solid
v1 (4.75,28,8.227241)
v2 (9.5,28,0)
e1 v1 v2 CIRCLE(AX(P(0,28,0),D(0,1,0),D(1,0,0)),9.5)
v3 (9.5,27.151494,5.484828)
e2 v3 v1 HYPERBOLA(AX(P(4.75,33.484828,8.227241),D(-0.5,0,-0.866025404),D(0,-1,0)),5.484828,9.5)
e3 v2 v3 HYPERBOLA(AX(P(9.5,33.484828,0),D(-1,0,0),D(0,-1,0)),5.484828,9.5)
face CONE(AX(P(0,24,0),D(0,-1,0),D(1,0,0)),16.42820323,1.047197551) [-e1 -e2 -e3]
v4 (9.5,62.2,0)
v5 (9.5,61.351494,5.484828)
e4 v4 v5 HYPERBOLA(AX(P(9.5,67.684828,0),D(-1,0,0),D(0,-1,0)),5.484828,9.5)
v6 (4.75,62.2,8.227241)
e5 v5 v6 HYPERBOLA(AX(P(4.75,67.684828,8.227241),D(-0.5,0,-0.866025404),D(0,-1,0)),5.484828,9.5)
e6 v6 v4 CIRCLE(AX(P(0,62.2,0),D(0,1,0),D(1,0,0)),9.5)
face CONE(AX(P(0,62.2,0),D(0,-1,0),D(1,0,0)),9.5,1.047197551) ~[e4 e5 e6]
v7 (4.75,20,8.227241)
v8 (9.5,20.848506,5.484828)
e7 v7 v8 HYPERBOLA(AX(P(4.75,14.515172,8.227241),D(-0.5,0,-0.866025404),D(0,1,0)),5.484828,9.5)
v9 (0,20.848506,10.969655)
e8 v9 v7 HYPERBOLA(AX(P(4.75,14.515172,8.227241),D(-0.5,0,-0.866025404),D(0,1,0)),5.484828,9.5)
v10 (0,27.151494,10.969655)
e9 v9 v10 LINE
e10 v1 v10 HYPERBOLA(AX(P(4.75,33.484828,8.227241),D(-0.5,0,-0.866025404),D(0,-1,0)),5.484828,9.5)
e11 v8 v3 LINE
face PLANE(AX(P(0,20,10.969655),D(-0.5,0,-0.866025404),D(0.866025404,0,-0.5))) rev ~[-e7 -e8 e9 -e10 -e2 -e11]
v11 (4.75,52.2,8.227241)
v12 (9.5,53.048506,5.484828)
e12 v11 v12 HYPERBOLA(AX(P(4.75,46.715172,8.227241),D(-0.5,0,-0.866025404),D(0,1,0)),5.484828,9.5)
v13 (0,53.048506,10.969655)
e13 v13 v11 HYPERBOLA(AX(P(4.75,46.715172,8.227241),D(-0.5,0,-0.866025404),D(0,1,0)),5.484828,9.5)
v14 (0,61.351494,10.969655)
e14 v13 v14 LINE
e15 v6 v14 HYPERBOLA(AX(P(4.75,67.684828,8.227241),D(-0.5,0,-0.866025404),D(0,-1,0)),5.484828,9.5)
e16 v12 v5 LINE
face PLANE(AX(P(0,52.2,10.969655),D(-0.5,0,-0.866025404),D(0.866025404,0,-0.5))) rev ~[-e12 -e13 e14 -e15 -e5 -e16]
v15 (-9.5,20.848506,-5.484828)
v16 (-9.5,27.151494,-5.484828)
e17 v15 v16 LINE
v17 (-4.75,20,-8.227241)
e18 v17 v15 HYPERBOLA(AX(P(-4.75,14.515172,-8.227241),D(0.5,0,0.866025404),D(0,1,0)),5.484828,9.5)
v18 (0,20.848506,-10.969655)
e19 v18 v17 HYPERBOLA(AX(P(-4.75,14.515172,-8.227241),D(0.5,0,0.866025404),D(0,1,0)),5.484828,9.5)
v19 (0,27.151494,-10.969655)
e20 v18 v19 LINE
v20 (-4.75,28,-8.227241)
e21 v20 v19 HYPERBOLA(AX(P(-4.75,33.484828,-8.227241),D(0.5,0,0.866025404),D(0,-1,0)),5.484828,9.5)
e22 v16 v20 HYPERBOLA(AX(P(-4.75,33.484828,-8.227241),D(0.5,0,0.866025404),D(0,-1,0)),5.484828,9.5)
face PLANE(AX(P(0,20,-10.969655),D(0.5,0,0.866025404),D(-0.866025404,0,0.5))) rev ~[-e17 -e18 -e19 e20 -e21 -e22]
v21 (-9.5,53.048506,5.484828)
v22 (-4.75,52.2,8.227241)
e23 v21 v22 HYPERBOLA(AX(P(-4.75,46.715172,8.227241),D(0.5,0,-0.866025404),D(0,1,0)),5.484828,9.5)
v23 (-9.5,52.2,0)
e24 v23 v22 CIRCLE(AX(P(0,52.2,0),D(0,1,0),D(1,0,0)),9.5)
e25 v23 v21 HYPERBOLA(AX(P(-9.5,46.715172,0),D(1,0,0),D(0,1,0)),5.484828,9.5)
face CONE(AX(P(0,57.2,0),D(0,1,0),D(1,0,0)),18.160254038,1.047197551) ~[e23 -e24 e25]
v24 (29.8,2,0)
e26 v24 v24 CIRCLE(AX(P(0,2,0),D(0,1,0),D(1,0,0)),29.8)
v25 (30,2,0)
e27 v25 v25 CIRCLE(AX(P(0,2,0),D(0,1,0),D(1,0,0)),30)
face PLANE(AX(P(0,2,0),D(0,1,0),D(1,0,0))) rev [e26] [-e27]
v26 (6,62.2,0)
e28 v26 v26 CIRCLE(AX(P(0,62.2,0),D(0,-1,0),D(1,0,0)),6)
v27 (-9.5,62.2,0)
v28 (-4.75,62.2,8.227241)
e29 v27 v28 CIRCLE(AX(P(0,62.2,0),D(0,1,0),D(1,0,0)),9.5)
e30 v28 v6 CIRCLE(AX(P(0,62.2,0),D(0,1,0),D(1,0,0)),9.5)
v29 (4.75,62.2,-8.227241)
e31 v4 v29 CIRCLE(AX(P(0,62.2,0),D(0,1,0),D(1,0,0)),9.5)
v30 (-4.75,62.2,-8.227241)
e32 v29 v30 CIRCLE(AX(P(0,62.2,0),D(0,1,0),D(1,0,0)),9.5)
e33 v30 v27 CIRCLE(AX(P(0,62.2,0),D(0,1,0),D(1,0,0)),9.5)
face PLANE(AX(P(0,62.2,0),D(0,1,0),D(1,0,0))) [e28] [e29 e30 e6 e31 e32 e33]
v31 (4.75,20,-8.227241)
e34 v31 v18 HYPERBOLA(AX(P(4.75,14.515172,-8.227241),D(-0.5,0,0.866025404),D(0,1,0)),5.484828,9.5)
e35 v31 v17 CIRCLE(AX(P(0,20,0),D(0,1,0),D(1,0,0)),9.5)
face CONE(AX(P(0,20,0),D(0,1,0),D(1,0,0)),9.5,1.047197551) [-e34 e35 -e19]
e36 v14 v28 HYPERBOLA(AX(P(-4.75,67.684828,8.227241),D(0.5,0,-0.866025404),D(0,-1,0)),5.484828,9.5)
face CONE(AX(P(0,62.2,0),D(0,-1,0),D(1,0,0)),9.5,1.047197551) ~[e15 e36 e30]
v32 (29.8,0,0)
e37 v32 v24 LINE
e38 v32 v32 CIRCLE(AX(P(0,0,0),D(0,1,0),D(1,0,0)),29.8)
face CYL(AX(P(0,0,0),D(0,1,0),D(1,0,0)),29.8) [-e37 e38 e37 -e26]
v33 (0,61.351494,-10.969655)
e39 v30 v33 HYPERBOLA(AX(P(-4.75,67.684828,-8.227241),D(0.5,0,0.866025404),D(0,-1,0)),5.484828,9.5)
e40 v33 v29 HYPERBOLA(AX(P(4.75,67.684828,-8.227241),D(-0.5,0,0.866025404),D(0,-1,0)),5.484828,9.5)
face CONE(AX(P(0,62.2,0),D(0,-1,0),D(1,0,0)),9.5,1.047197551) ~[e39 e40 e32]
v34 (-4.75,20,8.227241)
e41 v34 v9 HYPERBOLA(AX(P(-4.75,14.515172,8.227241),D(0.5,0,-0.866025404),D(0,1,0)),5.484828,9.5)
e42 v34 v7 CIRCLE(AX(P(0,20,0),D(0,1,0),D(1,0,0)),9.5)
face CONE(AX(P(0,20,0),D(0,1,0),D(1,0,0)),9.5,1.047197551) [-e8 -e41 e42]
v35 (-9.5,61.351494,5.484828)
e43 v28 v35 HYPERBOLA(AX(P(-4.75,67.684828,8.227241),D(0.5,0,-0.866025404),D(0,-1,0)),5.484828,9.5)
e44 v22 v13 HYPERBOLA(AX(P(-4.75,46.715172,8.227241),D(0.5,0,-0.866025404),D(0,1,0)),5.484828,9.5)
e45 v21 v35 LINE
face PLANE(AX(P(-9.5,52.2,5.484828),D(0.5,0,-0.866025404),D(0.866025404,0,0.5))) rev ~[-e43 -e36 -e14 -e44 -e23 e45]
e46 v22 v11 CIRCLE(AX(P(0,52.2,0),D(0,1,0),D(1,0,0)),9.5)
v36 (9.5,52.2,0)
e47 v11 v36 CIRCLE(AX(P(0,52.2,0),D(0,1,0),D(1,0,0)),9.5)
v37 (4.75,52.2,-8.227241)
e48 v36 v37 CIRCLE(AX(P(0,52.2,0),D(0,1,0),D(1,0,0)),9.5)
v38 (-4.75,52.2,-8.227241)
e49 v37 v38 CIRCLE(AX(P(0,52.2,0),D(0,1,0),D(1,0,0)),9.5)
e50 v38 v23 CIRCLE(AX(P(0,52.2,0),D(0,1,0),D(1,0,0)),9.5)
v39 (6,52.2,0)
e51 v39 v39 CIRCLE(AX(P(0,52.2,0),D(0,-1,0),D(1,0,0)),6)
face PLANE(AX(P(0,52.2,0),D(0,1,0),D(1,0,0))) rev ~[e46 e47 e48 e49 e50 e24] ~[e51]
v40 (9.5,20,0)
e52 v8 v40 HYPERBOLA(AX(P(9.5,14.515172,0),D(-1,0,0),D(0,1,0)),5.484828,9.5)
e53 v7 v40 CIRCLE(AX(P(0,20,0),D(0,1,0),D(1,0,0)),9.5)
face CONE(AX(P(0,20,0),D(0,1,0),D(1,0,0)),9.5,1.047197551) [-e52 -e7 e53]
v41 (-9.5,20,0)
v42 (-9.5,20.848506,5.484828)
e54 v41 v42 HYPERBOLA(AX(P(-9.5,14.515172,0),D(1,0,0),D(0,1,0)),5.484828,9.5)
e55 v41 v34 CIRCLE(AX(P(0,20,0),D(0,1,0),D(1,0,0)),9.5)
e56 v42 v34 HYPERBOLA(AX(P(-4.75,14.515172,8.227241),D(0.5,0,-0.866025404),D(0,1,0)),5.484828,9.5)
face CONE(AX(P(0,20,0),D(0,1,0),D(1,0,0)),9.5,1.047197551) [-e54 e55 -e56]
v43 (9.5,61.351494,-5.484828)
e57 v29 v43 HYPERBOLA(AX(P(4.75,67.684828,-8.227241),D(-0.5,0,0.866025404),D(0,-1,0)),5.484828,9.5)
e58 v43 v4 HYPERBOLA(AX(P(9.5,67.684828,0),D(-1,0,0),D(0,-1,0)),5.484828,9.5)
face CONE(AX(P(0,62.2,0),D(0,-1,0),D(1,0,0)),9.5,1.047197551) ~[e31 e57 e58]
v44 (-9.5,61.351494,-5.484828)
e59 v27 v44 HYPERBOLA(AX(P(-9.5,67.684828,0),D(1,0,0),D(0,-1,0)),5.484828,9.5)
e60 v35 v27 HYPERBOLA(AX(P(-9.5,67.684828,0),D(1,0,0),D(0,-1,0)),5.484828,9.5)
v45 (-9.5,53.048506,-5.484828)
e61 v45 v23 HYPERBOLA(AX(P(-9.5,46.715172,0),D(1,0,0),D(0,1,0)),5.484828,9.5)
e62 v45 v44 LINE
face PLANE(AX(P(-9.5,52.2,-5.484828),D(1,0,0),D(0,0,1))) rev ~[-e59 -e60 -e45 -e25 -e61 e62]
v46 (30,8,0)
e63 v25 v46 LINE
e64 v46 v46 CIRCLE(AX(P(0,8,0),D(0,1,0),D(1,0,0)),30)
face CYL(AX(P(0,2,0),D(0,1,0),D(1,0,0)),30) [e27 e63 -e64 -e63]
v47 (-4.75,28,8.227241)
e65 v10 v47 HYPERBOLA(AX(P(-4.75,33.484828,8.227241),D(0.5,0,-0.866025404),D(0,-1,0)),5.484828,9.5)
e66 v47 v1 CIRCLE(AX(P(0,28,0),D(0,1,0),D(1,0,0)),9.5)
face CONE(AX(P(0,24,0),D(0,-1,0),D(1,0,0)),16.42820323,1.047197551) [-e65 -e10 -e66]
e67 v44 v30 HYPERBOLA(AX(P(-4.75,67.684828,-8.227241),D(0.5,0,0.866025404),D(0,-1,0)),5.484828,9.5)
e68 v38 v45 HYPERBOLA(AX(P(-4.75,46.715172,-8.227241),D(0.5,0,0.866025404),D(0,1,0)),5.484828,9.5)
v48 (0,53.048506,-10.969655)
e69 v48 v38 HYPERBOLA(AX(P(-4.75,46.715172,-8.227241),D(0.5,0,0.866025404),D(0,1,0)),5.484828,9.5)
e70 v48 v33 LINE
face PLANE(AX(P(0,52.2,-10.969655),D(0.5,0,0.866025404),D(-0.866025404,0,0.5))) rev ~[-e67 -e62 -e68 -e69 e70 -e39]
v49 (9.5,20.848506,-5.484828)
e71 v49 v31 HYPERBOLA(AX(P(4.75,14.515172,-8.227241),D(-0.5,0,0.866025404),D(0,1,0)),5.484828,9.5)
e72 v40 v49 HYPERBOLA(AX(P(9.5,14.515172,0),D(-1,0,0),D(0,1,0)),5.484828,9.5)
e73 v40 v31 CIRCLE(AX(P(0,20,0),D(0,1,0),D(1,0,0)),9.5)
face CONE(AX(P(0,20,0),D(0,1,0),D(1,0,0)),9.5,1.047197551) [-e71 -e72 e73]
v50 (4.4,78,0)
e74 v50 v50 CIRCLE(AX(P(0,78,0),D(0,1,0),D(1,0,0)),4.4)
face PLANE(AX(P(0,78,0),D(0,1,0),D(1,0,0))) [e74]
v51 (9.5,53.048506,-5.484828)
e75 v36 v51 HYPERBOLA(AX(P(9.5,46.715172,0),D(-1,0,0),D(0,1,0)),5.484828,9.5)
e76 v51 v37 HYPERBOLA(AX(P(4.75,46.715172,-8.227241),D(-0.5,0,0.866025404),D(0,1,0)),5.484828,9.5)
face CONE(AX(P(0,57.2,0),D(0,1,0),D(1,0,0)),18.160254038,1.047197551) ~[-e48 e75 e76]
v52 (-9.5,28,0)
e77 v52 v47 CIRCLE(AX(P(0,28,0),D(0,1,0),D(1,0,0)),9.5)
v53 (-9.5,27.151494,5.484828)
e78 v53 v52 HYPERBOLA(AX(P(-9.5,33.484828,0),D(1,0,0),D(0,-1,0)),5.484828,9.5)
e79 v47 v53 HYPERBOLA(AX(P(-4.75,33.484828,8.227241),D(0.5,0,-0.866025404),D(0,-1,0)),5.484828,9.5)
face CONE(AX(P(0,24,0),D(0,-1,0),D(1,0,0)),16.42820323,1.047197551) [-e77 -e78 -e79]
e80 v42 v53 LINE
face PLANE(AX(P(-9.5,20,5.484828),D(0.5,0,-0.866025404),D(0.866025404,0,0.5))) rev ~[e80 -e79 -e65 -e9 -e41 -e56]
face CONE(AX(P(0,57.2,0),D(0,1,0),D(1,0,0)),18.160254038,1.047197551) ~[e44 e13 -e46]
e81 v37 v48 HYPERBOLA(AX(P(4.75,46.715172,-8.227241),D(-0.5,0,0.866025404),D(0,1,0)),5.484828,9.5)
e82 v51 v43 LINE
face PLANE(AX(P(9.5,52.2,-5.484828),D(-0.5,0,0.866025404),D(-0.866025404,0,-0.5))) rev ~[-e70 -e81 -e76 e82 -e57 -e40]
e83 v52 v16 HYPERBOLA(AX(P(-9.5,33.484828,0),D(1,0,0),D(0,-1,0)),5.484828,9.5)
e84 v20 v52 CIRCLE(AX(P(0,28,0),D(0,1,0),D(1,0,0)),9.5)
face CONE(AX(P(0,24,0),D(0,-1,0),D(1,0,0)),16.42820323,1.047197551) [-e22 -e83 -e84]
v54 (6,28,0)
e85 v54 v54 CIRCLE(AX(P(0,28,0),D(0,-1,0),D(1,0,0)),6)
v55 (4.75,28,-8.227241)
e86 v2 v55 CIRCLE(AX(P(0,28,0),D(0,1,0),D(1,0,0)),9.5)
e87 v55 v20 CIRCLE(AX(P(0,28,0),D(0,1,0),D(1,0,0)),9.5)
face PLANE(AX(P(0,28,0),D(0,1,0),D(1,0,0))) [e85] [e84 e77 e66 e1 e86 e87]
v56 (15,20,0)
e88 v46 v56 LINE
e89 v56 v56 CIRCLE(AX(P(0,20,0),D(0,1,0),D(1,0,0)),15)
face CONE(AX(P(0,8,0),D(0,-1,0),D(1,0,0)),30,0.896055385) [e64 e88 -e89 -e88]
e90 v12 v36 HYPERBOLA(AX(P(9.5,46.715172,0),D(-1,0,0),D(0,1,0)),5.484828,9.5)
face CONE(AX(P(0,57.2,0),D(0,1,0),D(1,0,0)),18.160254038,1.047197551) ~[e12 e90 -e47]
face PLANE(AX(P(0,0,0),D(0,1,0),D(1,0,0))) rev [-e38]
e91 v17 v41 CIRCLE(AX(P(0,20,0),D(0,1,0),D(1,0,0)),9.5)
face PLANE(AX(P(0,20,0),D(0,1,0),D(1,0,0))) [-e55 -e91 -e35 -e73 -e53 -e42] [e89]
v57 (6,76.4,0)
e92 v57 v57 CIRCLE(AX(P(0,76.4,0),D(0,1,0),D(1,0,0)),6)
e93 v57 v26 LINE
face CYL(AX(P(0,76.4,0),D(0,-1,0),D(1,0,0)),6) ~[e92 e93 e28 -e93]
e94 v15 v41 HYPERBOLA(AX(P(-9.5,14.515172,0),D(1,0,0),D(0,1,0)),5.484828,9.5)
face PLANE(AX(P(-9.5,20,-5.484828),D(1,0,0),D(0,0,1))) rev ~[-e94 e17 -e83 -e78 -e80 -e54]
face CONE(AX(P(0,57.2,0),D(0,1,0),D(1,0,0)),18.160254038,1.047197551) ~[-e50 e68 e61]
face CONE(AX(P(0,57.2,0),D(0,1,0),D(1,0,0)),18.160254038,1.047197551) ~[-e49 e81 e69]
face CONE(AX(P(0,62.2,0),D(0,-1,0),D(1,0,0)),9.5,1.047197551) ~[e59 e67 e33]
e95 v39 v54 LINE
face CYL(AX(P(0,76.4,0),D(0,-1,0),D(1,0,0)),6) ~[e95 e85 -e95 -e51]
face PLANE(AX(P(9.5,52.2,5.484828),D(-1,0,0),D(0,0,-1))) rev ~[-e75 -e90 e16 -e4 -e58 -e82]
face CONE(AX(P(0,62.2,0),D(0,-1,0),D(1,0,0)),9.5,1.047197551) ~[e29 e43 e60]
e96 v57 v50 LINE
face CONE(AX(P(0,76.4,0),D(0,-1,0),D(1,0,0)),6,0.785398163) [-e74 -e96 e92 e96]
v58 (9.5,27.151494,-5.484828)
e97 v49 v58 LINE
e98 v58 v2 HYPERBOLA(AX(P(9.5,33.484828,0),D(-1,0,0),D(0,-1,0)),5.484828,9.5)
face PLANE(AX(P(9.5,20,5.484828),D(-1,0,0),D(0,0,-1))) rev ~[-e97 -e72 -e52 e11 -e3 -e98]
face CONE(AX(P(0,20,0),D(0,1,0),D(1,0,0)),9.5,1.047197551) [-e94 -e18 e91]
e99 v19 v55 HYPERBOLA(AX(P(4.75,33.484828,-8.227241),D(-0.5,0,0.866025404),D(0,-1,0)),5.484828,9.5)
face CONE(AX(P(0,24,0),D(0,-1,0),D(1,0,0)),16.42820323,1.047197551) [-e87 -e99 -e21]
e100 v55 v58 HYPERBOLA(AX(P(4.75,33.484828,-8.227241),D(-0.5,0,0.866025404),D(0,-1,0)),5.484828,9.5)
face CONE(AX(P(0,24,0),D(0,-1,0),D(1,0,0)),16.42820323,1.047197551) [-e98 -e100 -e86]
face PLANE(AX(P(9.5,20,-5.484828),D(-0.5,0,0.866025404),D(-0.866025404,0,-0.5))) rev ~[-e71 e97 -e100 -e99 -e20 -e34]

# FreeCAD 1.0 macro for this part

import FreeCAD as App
import Part
import Sketcher

V = App.Vector
Q = App.Units.Quantity


def add_polygon(sketch, points):
    """Adds a closed chain of lines whose ends are joined by coincident constraints."""
    first, n = sketch.GeometryCount, len(points)
    for a, b in zip(points, points[1:] + points[:1]):
        sketch.addGeometry(Part.LineSegment(App.Vector(*a, 0), App.Vector(*b, 0)), False)
    for i in range(n):
        sketch.addConstraint(Sketcher.Constraint("Coincident", first + i, 2, first + (i + 1) % n, 1))

doc = App.newDocument("Part")
params = doc.addObject("Spreadsheet::Sheet", "Params")
for row, (alias, value) in enumerate([
    ("sketch1_width", "9 mm"),
    ("sketch1_height", "78 mm"),
    ("sketch1_height2", "6 mm"),
    ("sketch1_height3", "2 mm"),
    ("sketch1_width2", "29.8 mm"),
    ("revolution_angle", "360 deg"),
    ("pad1_length", "8 mm"),
    ("pad2_length", "10 mm"),
    ("sketch4_height", "5 mm"),
    ("sketch4_height2", "4 mm"),
    ("groove_angle", "360 deg"),
], start=1):
    params.set(f"A{row}", alias)
    params.set(f"B{row}", "=" + value)
    params.setAlias(f"B{row}", alias)

body = doc.addObject("PartDesign::Body", "Body")

sketch1 = doc.addObject("Sketcher::SketchObject", "Sketch")
body.addObject(sketch1)
sketch1.AttachmentSupport = (doc.XY_Plane, [""])
sketch1.MapMode = "FlatFace"
add_polygon(sketch1, [(-29.8, 0), (0, 0), (0, 78), (-4.4, 78), (-6, 76.4), (-6, 20), (-15, 20), (-30, 8), (-30, 2), (-29.8, 2)])
sketch1.addConstraint([
    Sketcher.Constraint("Horizontal", 0),
    Sketcher.Constraint("Vertical", 1),
    Sketcher.Constraint("Horizontal", 2),
    Sketcher.Constraint("Vertical", 4),
    Sketcher.Constraint("Horizontal", 5),
    Sketcher.Constraint("Vertical", 7),
    Sketcher.Constraint("Horizontal", 8),
    Sketcher.Constraint("Vertical", 9),
    Sketcher.Constraint("Coincident", 0, 2, -1, 1),
    Sketcher.Constraint("DistanceX", 5, 2, 5, 1, Q("9 mm")),
    Sketcher.Constraint("DistanceY", 1, 1, 1, 2, Q("78 mm")),
    Sketcher.Constraint("DistanceY", 7, 2, 7, 1, Q("6 mm")),
    Sketcher.Constraint("DistanceY", 9, 2, 9, 1, Q("2 mm")),
    Sketcher.Constraint("Angle", 3, Q("-135 deg")),
    Sketcher.Constraint("DistanceX", 0, 1, 0, 2, Q("29.8 mm")),
    Sketcher.Constraint("DistanceX", 2, 2, 2, 1, Q("4.4 mm")),
    Sketcher.Constraint("DistanceX", 8, 1, 8, 2, Q("0.2 mm")),
    Sketcher.Constraint("DistanceY", 4, 2, 4, 1, Q("56.4 mm")),
    Sketcher.Constraint("DistanceX", 3, 2, -1, 1, Q("6 mm")),
])
sketch1.setExpression("Constraints[19]", "Params.sketch1_width")
sketch1.setExpression("Constraints[20]", "Params.sketch1_height")
sketch1.setExpression("Constraints[21]", "Params.sketch1_height2")
sketch1.setExpression("Constraints[22]", "Params.sketch1_height3")
sketch1.setExpression("Constraints[24]", "Params.sketch1_width2")
revolution = doc.addObject("PartDesign::Revolution", "Revolution")
body.addObject(revolution)
revolution.Profile = sketch1
revolution.ReferenceAxis = (sketch1, ["V_Axis"])
revolution.setExpression("Angle", "Params.revolution_angle")

sketch2 = doc.addObject("Sketcher::SketchObject", "Sketch001")
body.addObject(sketch2)
sketch2.AttachmentSupport = (doc.XZ_Plane, [""])
sketch2.MapMode = "FlatFace"
sketch2.AttachmentOffset = App.Placement(V(0, 0, -20), App.Rotation())
add_polygon(sketch2, [(0, -10.969655), (-9.5, -5.484828), (-9.5, 5.484828), (0, 10.969655), (9.5, 5.484828), (9.5, -5.484828)])
sketch2.addConstraint([
    Sketcher.Constraint("Vertical", 1),
    Sketcher.Constraint("Vertical", 4),
    Sketcher.Constraint("Symmetric", 0, 2, 3, 2, -1, 1),
    Sketcher.Constraint("Symmetric", 2, 2, 5, 2, -1, 1),
    Sketcher.Constraint("PointOnObject", 2, 2, -2),
    Sketcher.Constraint("Parallel", 2, 5),
    Sketcher.Constraint("Horizontal", 1, 2, 3, 2),
    Sketcher.Constraint("Angle", 0, Q("150 deg")),
    Sketcher.Constraint("DistanceX", 1, 2, 3, 2, Q("19 mm")),
    Sketcher.Constraint("DistanceY", 1, 1, 1, 2, Q("10.969655 mm")),
])
pad1 = doc.addObject("PartDesign::Pad", "Pad")
body.addObject(pad1)
pad1.Profile = sketch2
pad1.setExpression("Length", "Params.pad1_length")
pad1.Reversed = True

sketch3 = doc.addObject("Sketcher::SketchObject", "Sketch002")
body.addObject(sketch3)
sketch3.AttachmentSupport = (doc.XZ_Plane, [""])
sketch3.MapMode = "FlatFace"
sketch3.AttachmentOffset = App.Placement(V(0, 0, -52.2), App.Rotation())
add_polygon(sketch3, [(9.5, -5.484828), (0, -10.969655), (-9.5, -5.484828), (-9.5, 5.484828), (0, 10.969655), (9.5, 5.484828)])
sketch3.addConstraint([
    Sketcher.Constraint("Vertical", 2),
    Sketcher.Constraint("Vertical", 5),
    Sketcher.Constraint("Symmetric", 0, 2, 3, 2, -1, 1),
    Sketcher.Constraint("Symmetric", 1, 2, 4, 2, -1, 1),
    Sketcher.Constraint("PointOnObject", 0, 2, -2),
    Sketcher.Constraint("Parallel", 0, 3),
    Sketcher.Constraint("Horizontal", 2, 2, 4, 2),
    Sketcher.Constraint("Angle", 0, Q("-150 deg")),
    Sketcher.Constraint("DistanceX", 2, 2, 4, 2, Q("19 mm")),
    Sketcher.Constraint("DistanceY", 2, 1, 2, 2, Q("10.969655 mm")),
])
pad2 = doc.addObject("PartDesign::Pad", "Pad001")
body.addObject(pad2)
pad2.Profile = sketch3
pad2.setExpression("Length", "Params.pad2_length")
pad2.Reversed = True

sketch4 = doc.addObject("Sketcher::SketchObject", "Sketch003")
body.addObject(sketch4)
sketch4.AttachmentSupport = (doc.XY_Plane, [""])
sketch4.MapMode = "FlatFace"
add_polygon(sketch4, [(-9.5, 62.2), (-18.160254, 62.2), (-18.160254, 57.2)])
add_polygon(sketch4, [(-18.160254, 57.2), (-18.160254, 52.2), (-9.5, 52.2)])
add_polygon(sketch4, [(-16.428203, 28), (-16.428203, 24), (-9.5, 28)])
add_polygon(sketch4, [(-16.428203, 24), (-16.428203, 20), (-9.5, 20)])
sketch4.addConstraint([
    Sketcher.Constraint("Horizontal", 0),
    Sketcher.Constraint("Vertical", 1),
    Sketcher.Constraint("Vertical", 3),
    Sketcher.Constraint("Horizontal", 4),
    Sketcher.Constraint("Vertical", 6),
    Sketcher.Constraint("Horizontal", 8),
    Sketcher.Constraint("Vertical", 9),
    Sketcher.Constraint("Horizontal", 10),
    Sketcher.Constraint("Coincident", 5, 2, 1, 2),
    Sketcher.Constraint("Coincident", 11, 2, 6, 2),
    Sketcher.Constraint("Parallel", 2, 7),
    Sketcher.Constraint("Parallel", 5, 11),
    Sketcher.Constraint("Vertical", 2, 2, 4, 2),
    Sketcher.Constraint("Vertical", 4, 2, 7, 2),
    Sketcher.Constraint("Vertical", 7, 2, 10, 2),
    Sketcher.Constraint("Equal", 1, 3),
    Sketcher.Constraint("DistanceY", 1, 2, 1, 1, Q("5 mm")),
    Sketcher.Constraint("DistanceY", 6, 2, 6, 1, Q("4 mm")),
    Sketcher.Constraint("Angle", 2, Q("30 deg")),
    Sketcher.Constraint("DistanceY", -1, 1, 6, 2, Q("24 mm")),
    Sketcher.Constraint("DistanceY", -1, 1, 0, 2, Q("62.2 mm")),
    Sketcher.Constraint("DistanceX", 2, 2, -1, 1, Q("9.5 mm")),
])
sketch4.setExpression("Constraints[28]", "Params.sketch4_height")
sketch4.setExpression("Constraints[29]", "Params.sketch4_height2")
groove = doc.addObject("PartDesign::Groove", "Groove")
body.addObject(groove)
groove.Profile = sketch4
groove.ReferenceAxis = (sketch4, ["V_Axis"])
groove.setExpression("Angle", "Params.groove_angle")

doc.recompute()
